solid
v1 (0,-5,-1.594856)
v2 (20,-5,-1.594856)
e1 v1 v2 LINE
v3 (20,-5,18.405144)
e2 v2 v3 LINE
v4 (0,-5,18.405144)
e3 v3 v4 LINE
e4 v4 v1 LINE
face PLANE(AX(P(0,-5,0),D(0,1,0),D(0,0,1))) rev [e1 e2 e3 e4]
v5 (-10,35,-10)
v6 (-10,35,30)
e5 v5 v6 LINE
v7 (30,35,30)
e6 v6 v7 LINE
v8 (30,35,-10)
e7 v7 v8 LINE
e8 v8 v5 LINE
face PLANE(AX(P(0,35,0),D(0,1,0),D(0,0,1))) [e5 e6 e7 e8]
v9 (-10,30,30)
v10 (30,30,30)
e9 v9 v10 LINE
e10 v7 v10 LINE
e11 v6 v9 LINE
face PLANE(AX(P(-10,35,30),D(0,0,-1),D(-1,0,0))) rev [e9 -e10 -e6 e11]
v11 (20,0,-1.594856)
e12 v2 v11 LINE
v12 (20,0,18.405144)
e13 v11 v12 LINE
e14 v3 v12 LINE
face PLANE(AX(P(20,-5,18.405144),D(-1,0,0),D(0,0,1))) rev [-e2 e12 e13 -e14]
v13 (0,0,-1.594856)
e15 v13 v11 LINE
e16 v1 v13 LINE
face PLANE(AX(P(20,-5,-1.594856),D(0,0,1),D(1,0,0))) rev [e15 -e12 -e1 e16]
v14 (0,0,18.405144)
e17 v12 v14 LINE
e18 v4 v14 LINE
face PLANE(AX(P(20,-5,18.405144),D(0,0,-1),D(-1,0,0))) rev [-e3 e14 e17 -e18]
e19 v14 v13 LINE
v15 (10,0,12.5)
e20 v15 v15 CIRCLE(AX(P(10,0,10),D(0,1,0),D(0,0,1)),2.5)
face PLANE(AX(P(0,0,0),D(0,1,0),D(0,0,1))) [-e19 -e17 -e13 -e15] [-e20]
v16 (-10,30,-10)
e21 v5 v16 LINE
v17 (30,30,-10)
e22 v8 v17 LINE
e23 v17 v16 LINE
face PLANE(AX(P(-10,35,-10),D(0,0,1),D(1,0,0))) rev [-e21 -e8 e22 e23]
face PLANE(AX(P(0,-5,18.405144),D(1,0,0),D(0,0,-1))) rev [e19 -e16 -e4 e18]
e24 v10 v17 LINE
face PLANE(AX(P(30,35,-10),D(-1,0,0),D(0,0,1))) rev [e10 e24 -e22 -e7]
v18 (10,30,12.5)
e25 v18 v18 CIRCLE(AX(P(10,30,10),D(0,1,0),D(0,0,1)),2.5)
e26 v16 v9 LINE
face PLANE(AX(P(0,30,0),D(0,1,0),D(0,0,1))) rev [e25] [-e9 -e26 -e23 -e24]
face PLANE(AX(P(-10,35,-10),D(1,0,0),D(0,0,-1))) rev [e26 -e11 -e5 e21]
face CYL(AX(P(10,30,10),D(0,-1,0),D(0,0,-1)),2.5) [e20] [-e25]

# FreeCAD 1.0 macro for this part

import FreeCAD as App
import Part
import Sketcher
from FreeCAD import Vector


def add_polygon(sketch, points):
    """Adds a closed chain of lines whose ends are joined by coincident constraints."""
    first, n = sketch.GeometryCount, len(points)
    for a, b in zip(points, points[1:] + points[:1]):
        sketch.addGeometry(Part.LineSegment(App.Vector(*a, 0), App.Vector(*b, 0)), False)
    for i in range(n):
        sketch.addConstraint(Sketcher.Constraint("Coincident", first + i, 2, first + (i + 1) % n, 1))

doc = App.newDocument("Part")
body = doc.addObject("PartDesign::Body", "Body")

# Sketch on XZ plane
sketch1 = body.newObject("Sketcher::SketchObject", "Sketch")
sketch1.AttachmentSupport = (doc.getObject("XZ_Plane"), [""])
sketch1.MapMode = "FlatFace"
sketch1.addGeometry(Part.Circle(Vector(10, 10, 0), Vector(0, 0, 1), 2.5), False)
sketch1.addConstraint(Sketcher.Constraint("Diameter", 0, 5.0))
sketch1.addConstraint(Sketcher.Constraint("DistanceX", -1, 1, 0, 3, 10.0))
sketch1.addConstraint(Sketcher.Constraint("DistanceY", -1, 1, 0, 3, 10.0))
pad1 = body.newObject("PartDesign::Pad", "Pad")
pad1.Profile = sketch1
pad1.Length = 30
pad1.Reversed = True

# Sketch on XZ plane
sketch2 = body.newObject("Sketcher::SketchObject", "Sketch001")
sketch2.AttachmentSupport = (doc.getObject("XZ_Plane"), [""])
sketch2.MapMode = "FlatFace"
sketch2.AttachmentOffset = App.Placement(Vector(0, 0, -30), App.Rotation())
add_polygon(sketch2, [(-10, -10), (-10, 30), (30, 30), (30, -10)])  # lines 0-3
sketch2.addConstraint(Sketcher.Constraint("Vertical", 0))
sketch2.addConstraint(Sketcher.Constraint("Horizontal", 1))
sketch2.addConstraint(Sketcher.Constraint("Vertical", 2))
sketch2.addConstraint(Sketcher.Constraint("Horizontal", 3))
sketch2.addConstraint(Sketcher.Constraint("Equal", 3, 0))
sketch2.addConstraint(Sketcher.Constraint("DistanceX", 1, 1, 1, 2, 40.0))
sketch2.addConstraint(Sketcher.Constraint("DistanceX", 0, 2, -1, 1, 10.0))
sketch2.addConstraint(Sketcher.Constraint("DistanceY", -1, 1, 0, 2, 30.0))
pad2 = body.newObject("PartDesign::Pad", "Pad001")
pad2.Profile = sketch2
pad2.Length = 5
pad2.Reversed = True

# Sketch on XZ plane
sketch3 = body.newObject("Sketcher::SketchObject", "Sketch002")
sketch3.AttachmentSupport = (doc.getObject("XZ_Plane"), [""])
sketch3.MapMode = "FlatFace"
add_polygon(sketch3, [(0, 18), (0, -2), (20, -2), (20, 18)])  # lines 0-3
sketch3.addConstraint(Sketcher.Constraint("Vertical", 0))
sketch3.addConstraint(Sketcher.Constraint("Horizontal", 1))
sketch3.addConstraint(Sketcher.Constraint("Vertical", 2))
sketch3.addConstraint(Sketcher.Constraint("Horizontal", 3))
sketch3.addConstraint(Sketcher.Constraint("PointOnObject", 0, 2, -2))
sketch3.addConstraint(Sketcher.Constraint("Equal", 3, 0))
sketch3.addConstraint(Sketcher.Constraint("DistanceX", 1, 1, 1, 2, 20.0))
sketch3.addConstraint(Sketcher.Constraint("DistanceY", 0, 2, -1, 1, 1.594856))
pad3 = body.newObject("PartDesign::Pad", "Pad002")
pad3.Profile = sketch3
pad3.Length = 5

doc.recompute()
